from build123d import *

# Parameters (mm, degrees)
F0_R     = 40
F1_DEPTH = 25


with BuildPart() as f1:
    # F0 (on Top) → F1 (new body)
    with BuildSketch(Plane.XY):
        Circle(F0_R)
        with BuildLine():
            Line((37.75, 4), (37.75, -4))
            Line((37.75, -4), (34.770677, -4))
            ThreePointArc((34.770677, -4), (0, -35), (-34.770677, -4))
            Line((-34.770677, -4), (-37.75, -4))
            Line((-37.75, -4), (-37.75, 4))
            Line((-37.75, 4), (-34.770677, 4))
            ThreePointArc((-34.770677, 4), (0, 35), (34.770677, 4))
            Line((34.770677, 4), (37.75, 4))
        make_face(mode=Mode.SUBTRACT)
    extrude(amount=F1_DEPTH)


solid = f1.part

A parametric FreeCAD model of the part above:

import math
import FreeCAD as App
import Part
import Sketcher

V = App.Vector

doc = App.newDocument("Part")
params = doc.addObject("Spreadsheet::Sheet", "Params")
for row, (alias, value) in enumerate([
    ("sketch1_diameter", "80 mm"),
    ("sketch1_radius", "35 mm"),
    ("sketch1_height", "8 mm"),
    ("pad1_length", "25 mm"),
], start=1):
    params.set(f"A{row}", alias)
    params.set(f"B{row}", "=" + value)
    params.setAlias(f"B{row}", alias)

body = doc.addObject("PartDesign::Body", "Body")

sketch1 = body.newObject("Sketcher::SketchObject", "Sketch")
sketch1.AttachmentSupport = (doc.getObject("XY_Plane"), [""])
sketch1.MapMode = "FlatFace"
sketch1.addGeometry([
    Part.Circle(V(0, 0, 0), V(0, 0, 1), 40),
    Part.LineSegment(V(34.8, 4, 0), V(37.8, 4, 0)),
    Part.LineSegment(V(37.8, 4, 0), V(37.8, -4, 0)),
    Part.LineSegment(V(37.8, -4, 0), V(34.8, -4, 0)),
    Part.ArcOfCircle(Part.Circle(V(0, 0, 0), V(0, 0, 1), 35), math.radians(-173), math.radians(-7)),
    Part.LineSegment(V(-34.8, -4, 0), V(-37.8, -4, 0)),
    Part.LineSegment(V(-37.8, -4, 0), V(-37.8, 4, 0)),
    Part.LineSegment(V(-37.8, 4, 0), V(-34.8, 4, 0)),
    Part.ArcOfCircle(Part.Circle(V(0, 0, 0), V(0, 0, 1), 35), math.radians(7), math.radians(173)),
], False)
sketch1.addConstraint([
    Sketcher.Constraint("Coincident", 1, 2, 2, 1),
    Sketcher.Constraint("Coincident", 2, 2, 3, 1),
    Sketcher.Constraint("Coincident", 3, 2, 4, 2),
    Sketcher.Constraint("Coincident", 4, 1, 5, 1),
    Sketcher.Constraint("Coincident", 5, 2, 6, 1),
    Sketcher.Constraint("Coincident", 6, 2, 7, 1),
    Sketcher.Constraint("Coincident", 7, 2, 8, 2),
    Sketcher.Constraint("Coincident", 8, 1, 1, 1),
    Sketcher.Constraint("Horizontal", 1),
    Sketcher.Constraint("Vertical", 2),
    Sketcher.Constraint("Horizontal", 3),
    Sketcher.Constraint("Horizontal", 5),
    Sketcher.Constraint("Vertical", 6),
    Sketcher.Constraint("Horizontal", 7),
    Sketcher.Constraint("Coincident", 0, 3, -1, 1),
    Sketcher.Constraint("Coincident", 4, 3, -1, 1),
    Sketcher.Constraint("Coincident", 8, 3, -1, 1),
    Sketcher.Constraint("Equal", 4, 8),
    Sketcher.Constraint("Symmetric", 1, 2, 5, 2, -1, 1),
    Sketcher.Constraint("Horizontal", 3, 2, 4, 1),
    Sketcher.Constraint("Horizontal", 1, 2, 6, 2),
    Sketcher.Constraint("Diameter", 0, 80.0),
    Sketcher.Constraint("Radius", 4, 35.0),
    Sketcher.Constraint("DistanceY", 2, 2, 2, 1, 8.0),
    Sketcher.Constraint("DistanceX", -1, 1, 1, 2, 37.75),
])
sketch1.setExpression("Constraints[21]", "Params.sketch1_diameter")
sketch1.setExpression("Constraints[22]", "Params.sketch1_radius")
sketch1.setExpression("Constraints[23]", "Params.sketch1_height")
pad1 = body.newObject("PartDesign::Pad", "Pad")
pad1.Profile = sketch1
pad1.setExpression("Length", "Params.pad1_length")

doc.recompute()
